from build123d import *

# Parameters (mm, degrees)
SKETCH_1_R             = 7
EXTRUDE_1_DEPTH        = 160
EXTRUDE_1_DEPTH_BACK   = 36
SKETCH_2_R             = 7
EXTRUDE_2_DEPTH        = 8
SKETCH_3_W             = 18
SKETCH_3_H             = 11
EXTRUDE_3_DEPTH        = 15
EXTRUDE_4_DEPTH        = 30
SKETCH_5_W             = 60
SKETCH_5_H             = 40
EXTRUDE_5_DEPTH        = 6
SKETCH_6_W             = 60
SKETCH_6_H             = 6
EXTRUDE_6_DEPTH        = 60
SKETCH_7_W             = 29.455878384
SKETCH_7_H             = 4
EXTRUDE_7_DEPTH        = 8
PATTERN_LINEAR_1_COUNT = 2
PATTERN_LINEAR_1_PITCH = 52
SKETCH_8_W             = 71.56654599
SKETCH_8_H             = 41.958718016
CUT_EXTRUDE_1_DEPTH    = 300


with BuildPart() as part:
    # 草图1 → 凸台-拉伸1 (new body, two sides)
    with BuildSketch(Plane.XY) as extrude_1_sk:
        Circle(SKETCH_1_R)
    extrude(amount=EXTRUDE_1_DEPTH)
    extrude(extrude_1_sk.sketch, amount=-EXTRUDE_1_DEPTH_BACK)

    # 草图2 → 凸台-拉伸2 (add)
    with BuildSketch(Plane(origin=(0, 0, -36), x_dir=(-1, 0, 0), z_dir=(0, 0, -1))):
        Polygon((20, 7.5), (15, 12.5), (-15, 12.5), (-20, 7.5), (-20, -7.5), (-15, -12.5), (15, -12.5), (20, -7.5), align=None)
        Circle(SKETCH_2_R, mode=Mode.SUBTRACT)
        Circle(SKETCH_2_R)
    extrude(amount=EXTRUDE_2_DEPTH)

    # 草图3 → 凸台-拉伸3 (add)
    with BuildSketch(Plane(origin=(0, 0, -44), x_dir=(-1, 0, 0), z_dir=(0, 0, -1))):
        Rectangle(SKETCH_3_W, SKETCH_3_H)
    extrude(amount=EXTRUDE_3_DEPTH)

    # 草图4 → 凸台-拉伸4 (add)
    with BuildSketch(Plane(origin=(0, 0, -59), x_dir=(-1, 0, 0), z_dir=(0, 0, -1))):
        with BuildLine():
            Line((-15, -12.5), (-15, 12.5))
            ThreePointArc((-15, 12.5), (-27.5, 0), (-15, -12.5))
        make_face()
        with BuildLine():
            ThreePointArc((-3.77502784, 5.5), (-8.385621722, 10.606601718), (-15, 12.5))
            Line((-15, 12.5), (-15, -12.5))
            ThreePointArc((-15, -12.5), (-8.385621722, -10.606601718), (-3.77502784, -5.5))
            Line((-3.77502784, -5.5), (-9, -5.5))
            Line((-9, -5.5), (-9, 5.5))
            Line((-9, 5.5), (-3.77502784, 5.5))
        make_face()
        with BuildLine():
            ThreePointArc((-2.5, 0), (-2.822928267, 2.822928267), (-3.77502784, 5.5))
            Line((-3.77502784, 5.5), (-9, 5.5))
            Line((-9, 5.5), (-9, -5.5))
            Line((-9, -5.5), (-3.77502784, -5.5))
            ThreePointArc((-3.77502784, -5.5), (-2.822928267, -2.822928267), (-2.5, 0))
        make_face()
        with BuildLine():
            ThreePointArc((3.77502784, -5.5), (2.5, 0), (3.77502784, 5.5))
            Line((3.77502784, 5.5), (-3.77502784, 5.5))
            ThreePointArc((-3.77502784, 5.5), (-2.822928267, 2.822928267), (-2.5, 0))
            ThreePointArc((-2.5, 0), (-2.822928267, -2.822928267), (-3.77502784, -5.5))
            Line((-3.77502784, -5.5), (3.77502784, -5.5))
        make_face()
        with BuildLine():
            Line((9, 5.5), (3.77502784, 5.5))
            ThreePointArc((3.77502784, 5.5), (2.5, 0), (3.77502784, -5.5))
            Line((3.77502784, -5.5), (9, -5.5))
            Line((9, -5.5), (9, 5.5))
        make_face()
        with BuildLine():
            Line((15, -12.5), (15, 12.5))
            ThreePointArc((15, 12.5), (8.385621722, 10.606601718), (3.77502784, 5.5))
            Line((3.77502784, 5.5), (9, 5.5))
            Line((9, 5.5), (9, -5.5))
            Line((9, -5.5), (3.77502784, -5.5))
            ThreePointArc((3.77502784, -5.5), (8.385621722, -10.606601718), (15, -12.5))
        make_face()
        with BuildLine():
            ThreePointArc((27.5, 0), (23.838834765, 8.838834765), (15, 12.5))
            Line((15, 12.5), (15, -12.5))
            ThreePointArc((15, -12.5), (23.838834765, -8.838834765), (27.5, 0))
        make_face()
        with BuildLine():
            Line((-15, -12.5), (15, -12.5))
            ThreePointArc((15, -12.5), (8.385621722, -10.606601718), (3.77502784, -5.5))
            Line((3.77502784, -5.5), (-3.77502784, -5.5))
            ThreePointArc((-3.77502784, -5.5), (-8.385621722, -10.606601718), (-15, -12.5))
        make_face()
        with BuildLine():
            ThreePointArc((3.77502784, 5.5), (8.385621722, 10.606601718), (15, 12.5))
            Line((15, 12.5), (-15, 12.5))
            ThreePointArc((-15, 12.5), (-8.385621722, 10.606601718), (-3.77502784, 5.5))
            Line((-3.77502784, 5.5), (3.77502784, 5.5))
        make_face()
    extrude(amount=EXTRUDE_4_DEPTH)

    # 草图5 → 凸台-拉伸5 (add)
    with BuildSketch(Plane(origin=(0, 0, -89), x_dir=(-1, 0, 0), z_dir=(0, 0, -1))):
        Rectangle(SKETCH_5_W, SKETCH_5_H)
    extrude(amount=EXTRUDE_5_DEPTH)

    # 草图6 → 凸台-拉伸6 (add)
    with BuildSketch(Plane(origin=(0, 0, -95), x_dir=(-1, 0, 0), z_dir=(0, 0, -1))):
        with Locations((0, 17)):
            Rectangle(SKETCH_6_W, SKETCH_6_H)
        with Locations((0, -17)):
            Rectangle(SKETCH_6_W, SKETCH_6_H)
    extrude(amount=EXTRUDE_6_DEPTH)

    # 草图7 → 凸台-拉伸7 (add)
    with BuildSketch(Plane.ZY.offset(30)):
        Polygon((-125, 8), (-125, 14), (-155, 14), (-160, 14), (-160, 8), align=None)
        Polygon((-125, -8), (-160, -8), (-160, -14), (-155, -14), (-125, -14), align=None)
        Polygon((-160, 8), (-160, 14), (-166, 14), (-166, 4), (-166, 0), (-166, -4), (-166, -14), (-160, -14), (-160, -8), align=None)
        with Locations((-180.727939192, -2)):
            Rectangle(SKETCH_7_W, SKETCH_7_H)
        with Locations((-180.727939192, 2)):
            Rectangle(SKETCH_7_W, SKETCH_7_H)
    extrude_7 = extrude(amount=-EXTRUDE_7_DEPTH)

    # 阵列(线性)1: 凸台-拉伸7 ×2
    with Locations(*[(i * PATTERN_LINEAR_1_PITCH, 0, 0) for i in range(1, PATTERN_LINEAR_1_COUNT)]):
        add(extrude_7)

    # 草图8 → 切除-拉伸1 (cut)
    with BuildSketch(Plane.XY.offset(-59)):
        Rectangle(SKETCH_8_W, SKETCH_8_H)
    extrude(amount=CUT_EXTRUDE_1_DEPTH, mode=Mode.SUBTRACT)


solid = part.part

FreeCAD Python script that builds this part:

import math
import FreeCAD as App
import Part
import Sketcher


def add_polygon(sketch, points):
    """Adds a closed chain of lines whose ends are joined by coincident constraints."""
    first, n = sketch.GeometryCount, len(points)
    for a, b in zip(points, points[1:] + points[:1]):
        sketch.addGeometry(Part.LineSegment(App.Vector(*a, 0), App.Vector(*b, 0)), False)
    for i in range(n):
        sketch.addConstraint(Sketcher.Constraint("Coincident", first + i, 2, first + (i + 1) % n, 1))

doc = App.newDocument("Part")
body = doc.addObject("PartDesign::Body", "Body")

# Sketch on XY plane
sketch1 = body.newObject("Sketcher::SketchObject", "Sketch")
sketch1.AttachmentSupport = (doc.getObject("XY_Plane"), [""])
sketch1.MapMode = "FlatFace"
sketch1.addGeometry(Part.Circle(App.Vector(0, 0, 0), App.Vector(0, 0, 1), 7), False)
sketch1.addConstraint([
    Sketcher.Constraint("Coincident", 0, 3, -1, 1),
    Sketcher.Constraint("Diameter", 0, 14.0),
])
pad1 = body.newObject("PartDesign::Pad", "Pad")
pad1.Profile = sketch1
pad1.Type = "TwoLengths"
pad1.Length = 160
pad1.Length2 = 36

# Sketch on XY plane
sketch2 = body.newObject("Sketcher::SketchObject", "Sketch001")
sketch2.AttachmentSupport = (doc.getObject("XY_Plane"), [""])
sketch2.MapMode = "FlatFace"
sketch2.AttachmentOffset = App.Placement(App.Vector(0, 0, -36), App.Rotation())
add_polygon(sketch2, [(-20, 8), (-15, 12), (15, 12), (20, 8), (20, -8), (15, -12), (-15, -12), (-20, -8)])  # lines 0-7
sketch2.addConstraint([
    Sketcher.Constraint("Horizontal", 1),
    Sketcher.Constraint("Vertical", 3),
    Sketcher.Constraint("Horizontal", 5),
    Sketcher.Constraint("Vertical", 7),
    Sketcher.Constraint("Symmetric", 0, 2, 4, 2, -1, 1),
    Sketcher.Constraint("Symmetric", 2, 2, 6, 2, -1, 1),
    Sketcher.Constraint("Perpendicular", 0, 2),
    Sketcher.Constraint("Perpendicular", 2, 4),
    Sketcher.Constraint("Perpendicular", 4, 6),
    Sketcher.Constraint("Horizontal", 3, 2, 6, 2),
    Sketcher.Constraint("Vertical", 1, 2, 4, 2),
    Sketcher.Constraint("DistanceX", 1, 1, 1, 2, 30.0),
    Sketcher.Constraint("DistanceY", 3, 2, 3, 1, 15.0),
    Sketcher.Constraint("DistanceX", -1, 1, 2, 2, 20.0),
])
pad2 = body.newObject("PartDesign::Pad", "Pad001")
pad2.Profile = sketch2
pad2.Length = 8
pad2.Reversed = True

# Sketch on XY plane
sketch3 = body.newObject("Sketcher::SketchObject", "Sketch002")
sketch3.AttachmentSupport = (doc.getObject("XY_Plane"), [""])
sketch3.MapMode = "FlatFace"
sketch3.AttachmentOffset = App.Placement(App.Vector(0, 0, -44), App.Rotation())
add_polygon(sketch3, [(9, 6), (9, -6), (-9, -6), (-9, 6)])  # lines 0-3
sketch3.addConstraint([
    Sketcher.Constraint("Vertical", 0),
    Sketcher.Constraint("Horizontal", 1),
    Sketcher.Constraint("Vertical", 2),
    Sketcher.Constraint("Horizontal", 3),
    Sketcher.Constraint("Symmetric", 0, 2, 2, 2, -1, 1),
    Sketcher.Constraint("DistanceX", 1, 2, 1, 1, 18.0),
    Sketcher.Constraint("DistanceY", 0, 2, 0, 1, 11.0),
])
pad3 = body.newObject("PartDesign::Pad", "Pad002")
pad3.Profile = sketch3
pad3.Length = 15
pad3.Reversed = True

# Sketch on XY plane
sketch4 = body.newObject("Sketcher::SketchObject", "Sketch003")
sketch4.AttachmentSupport = (doc.getObject("XY_Plane"), [""])
sketch4.MapMode = "FlatFace"
sketch4.AttachmentOffset = App.Placement(App.Vector(0, 0, -59), App.Rotation())
sketch4.addGeometry([
    Part.ArcOfCircle(Part.Circle(App.Vector(15, 0, 0), App.Vector(0, 0, 1), 12), math.radians(-90), math.radians(90)),  # 0
    Part.LineSegment(App.Vector(15, -12, 0), App.Vector(-15, -12, 0)),  # 1
    Part.ArcOfCircle(Part.Circle(App.Vector(-15, 0, 0), App.Vector(0, 0, 1), 12), math.radians(180), math.radians(270)),  # 2
    Part.ArcOfCircle(Part.Circle(App.Vector(-15, 0, 0), App.Vector(0, 0, 1), 12), math.radians(90), math.radians(180)),  # 3
    Part.LineSegment(App.Vector(-15, 12, 0), App.Vector(15, 12, 0)),  # 4
], False)
sketch4.addConstraint([
    Sketcher.Constraint("Tangent", 0, 1, 1, 1),
    Sketcher.Constraint("Tangent", 1, 2, 2, 2),
    Sketcher.Constraint("Tangent", 2, 1, 3, 2),
    Sketcher.Constraint("Tangent", 3, 1, 4, 1),
    Sketcher.Constraint("Tangent", 4, 2, 0, 2),
    Sketcher.Constraint("Horizontal", 1),
    Sketcher.Constraint("Horizontal", 4),
    Sketcher.Constraint("Equal", 0, 2),
    Sketcher.Constraint("Symmetric", 0, 3, 2, 3, -1, 1),
    Sketcher.Constraint("PointOnObject", 2, 1, -1),
    Sketcher.Constraint("Radius", 0, 12.5),
    Sketcher.Constraint("DistanceX", 1, 2, 1, 1, 30.0),
])
pad4 = body.newObject("PartDesign::Pad", "Pad003")
pad4.Profile = sketch4
pad4.Length = 30
pad4.Reversed = True

# Sketch on XY plane
sketch5 = body.newObject("Sketcher::SketchObject", "Sketch004")
sketch5.AttachmentSupport = (doc.getObject("XY_Plane"), [""])
sketch5.MapMode = "FlatFace"
sketch5.AttachmentOffset = App.Placement(App.Vector(0, 0, -89), App.Rotation())
add_polygon(sketch5, [(30, 20), (30, -20), (-30, -20), (-30, 20)])  # lines 0-3
sketch5.addConstraint([
    Sketcher.Constraint("Vertical", 0),
    Sketcher.Constraint("Horizontal", 1),
    Sketcher.Constraint("Vertical", 2),
    Sketcher.Constraint("Horizontal", 3),
    Sketcher.Constraint("Symmetric", 0, 2, 2, 2, -1, 1),
    Sketcher.Constraint("DistanceX", 1, 2, 1, 1, 60.0),
    Sketcher.Constraint("DistanceY", 0, 2, 0, 1, 40.0),
])
pad5 = body.newObject("PartDesign::Pad", "Pad004")
pad5.Profile = sketch5
pad5.Length = 6
pad5.Reversed = True

# Sketch on XY plane
sketch6 = body.newObject("Sketcher::SketchObject", "Sketch005")
sketch6.AttachmentSupport = (doc.getObject("XY_Plane"), [""])
sketch6.MapMode = "FlatFace"
sketch6.AttachmentOffset = App.Placement(App.Vector(0, 0, -95), App.Rotation())
add_polygon(sketch6, [(30, 20), (30, 14), (-30, 14), (-30, 20)])  # lines 0-3
add_polygon(sketch6, [(30, -14), (30, -20), (-30, -20), (-30, -14)])  # lines 4-7
sketch6.addConstraint([
    Sketcher.Constraint("Vertical", 0),
    Sketcher.Constraint("Horizontal", 1),
    Sketcher.Constraint("Vertical", 2),
    Sketcher.Constraint("Horizontal", 3),
    Sketcher.Constraint("Vertical", 4),
    Sketcher.Constraint("Horizontal", 5),
    Sketcher.Constraint("Vertical", 6),
    Sketcher.Constraint("Horizontal", 7),
    Sketcher.Constraint("Symmetric", 2, 2, 4, 2, -1, 1),
    Sketcher.Constraint("Symmetric", 0, 2, 6, 2, -1, 1),
    Sketcher.Constraint("Vertical", 3, 2, 4, 2),
    Sketcher.Constraint("DistanceX", 1, 2, 1, 1, 60.0),
    Sketcher.Constraint("DistanceY", 0, 2, 0, 1, 6.0),
    Sketcher.Constraint("DistanceY", -1, 1, 0, 2, 14.0),
])
pad6 = body.newObject("PartDesign::Pad", "Pad005")
pad6.Profile = sketch6
pad6.Length = 60
pad6.Reversed = True

# Sketch on YZ plane
sketch7 = body.newObject("Sketcher::SketchObject", "Sketch006")
sketch7.AttachmentSupport = (doc.getObject("YZ_Plane"), [""])
sketch7.MapMode = "FlatFace"
sketch7.AttachmentOffset = App.Placement(App.Vector(0, 0, -30), App.Rotation())
add_polygon(sketch7, [(8, -125), (14, -125), (14, -166), (4, -166), (4, -195), (-4, -195), (-4, -166), (-14, -166), (-14, -125), (-8, -125), (-8, -160), (8, -160)])  # lines 0-11
sketch7.addConstraint([
    Sketcher.Constraint("Horizontal", 0),
    Sketcher.Constraint("Vertical", 1),
    Sketcher.Constraint("Horizontal", 2),
    Sketcher.Constraint("Vertical", 3),
    Sketcher.Constraint("Horizontal", 4),
    Sketcher.Constraint("Vertical", 5),
    Sketcher.Constraint("Horizontal", 6),
    Sketcher.Constraint("Vertical", 7),
    Sketcher.Constraint("Horizontal", 8),
    Sketcher.Constraint("Vertical", 9),
    Sketcher.Constraint("Horizontal", 10),
    Sketcher.Constraint("Vertical", 11),
    Sketcher.Constraint("Symmetric", 2, 2, 5, 2, -2),
    Sketcher.Constraint("Symmetric", 0, 2, 7, 2, -2),
    Sketcher.Constraint("Equal", 0, 8),
    Sketcher.Constraint("DistanceX", 0, 1, 0, 2, 6.0),
    Sketcher.Constraint("DistanceX", 2, 2, 2, 1, 10.0),
    Sketcher.Constraint("DistanceX", 4, 2, 4, 1, 8.0),
    Sketcher.Constraint("DistanceY", 1, 2, 1, 1, 41.0),
    Sketcher.Constraint("DistanceY", 9, 2, 9, 1, 35.0),
    Sketcher.Constraint("DistanceY", 0, 2, -1, 1, 125.0),
    Sketcher.Constraint("DistanceY", 3, 2, 3, 1, 29.455878),
])
pad7 = body.newObject("PartDesign::Pad", "Pad006")
pad7.Profile = sketch7
pad7.Length = 8
doc.recompute()

linearpattern = body.newObject("PartDesign::LinearPattern", "LinearPattern")
linearpattern.Originals = [pad7]
linearpattern.Direction = (doc.getObject("X_Axis"), [""])
linearpattern.Mode = "offset"
linearpattern.Offset = 52
linearpattern.Occurrences = 2
body.Tip = linearpattern

# Sketch on XY plane
sketch8 = body.newObject("Sketcher::SketchObject", "Sketch007")
sketch8.AttachmentSupport = (doc.getObject("XY_Plane"), [""])
sketch8.MapMode = "FlatFace"
sketch8.AttachmentOffset = App.Placement(App.Vector(0, 0, -59), App.Rotation())
add_polygon(sketch8, [(-36, 21), (-36, -21), (36, -21), (36, 21)])  # lines 0-3
sketch8.addConstraint([
    Sketcher.Constraint("Vertical", 0),
    Sketcher.Constraint("Horizontal", 1),
    Sketcher.Constraint("Vertical", 2),
    Sketcher.Constraint("Horizontal", 3),
    Sketcher.Constraint("Symmetric", 0, 2, 2, 2, -1, 1),
    Sketcher.Constraint("DistanceY", 0, 2, 0, 1, 41.958718),
    Sketcher.Constraint("DistanceX", 1, 1, 1, 2, 71.566546),
])
pocket1 = body.newObject("PartDesign::Pocket", "Pocket")
pocket1.Profile = sketch8
pocket1.Length = 300
pocket1.Reversed = True

doc.recompute()
